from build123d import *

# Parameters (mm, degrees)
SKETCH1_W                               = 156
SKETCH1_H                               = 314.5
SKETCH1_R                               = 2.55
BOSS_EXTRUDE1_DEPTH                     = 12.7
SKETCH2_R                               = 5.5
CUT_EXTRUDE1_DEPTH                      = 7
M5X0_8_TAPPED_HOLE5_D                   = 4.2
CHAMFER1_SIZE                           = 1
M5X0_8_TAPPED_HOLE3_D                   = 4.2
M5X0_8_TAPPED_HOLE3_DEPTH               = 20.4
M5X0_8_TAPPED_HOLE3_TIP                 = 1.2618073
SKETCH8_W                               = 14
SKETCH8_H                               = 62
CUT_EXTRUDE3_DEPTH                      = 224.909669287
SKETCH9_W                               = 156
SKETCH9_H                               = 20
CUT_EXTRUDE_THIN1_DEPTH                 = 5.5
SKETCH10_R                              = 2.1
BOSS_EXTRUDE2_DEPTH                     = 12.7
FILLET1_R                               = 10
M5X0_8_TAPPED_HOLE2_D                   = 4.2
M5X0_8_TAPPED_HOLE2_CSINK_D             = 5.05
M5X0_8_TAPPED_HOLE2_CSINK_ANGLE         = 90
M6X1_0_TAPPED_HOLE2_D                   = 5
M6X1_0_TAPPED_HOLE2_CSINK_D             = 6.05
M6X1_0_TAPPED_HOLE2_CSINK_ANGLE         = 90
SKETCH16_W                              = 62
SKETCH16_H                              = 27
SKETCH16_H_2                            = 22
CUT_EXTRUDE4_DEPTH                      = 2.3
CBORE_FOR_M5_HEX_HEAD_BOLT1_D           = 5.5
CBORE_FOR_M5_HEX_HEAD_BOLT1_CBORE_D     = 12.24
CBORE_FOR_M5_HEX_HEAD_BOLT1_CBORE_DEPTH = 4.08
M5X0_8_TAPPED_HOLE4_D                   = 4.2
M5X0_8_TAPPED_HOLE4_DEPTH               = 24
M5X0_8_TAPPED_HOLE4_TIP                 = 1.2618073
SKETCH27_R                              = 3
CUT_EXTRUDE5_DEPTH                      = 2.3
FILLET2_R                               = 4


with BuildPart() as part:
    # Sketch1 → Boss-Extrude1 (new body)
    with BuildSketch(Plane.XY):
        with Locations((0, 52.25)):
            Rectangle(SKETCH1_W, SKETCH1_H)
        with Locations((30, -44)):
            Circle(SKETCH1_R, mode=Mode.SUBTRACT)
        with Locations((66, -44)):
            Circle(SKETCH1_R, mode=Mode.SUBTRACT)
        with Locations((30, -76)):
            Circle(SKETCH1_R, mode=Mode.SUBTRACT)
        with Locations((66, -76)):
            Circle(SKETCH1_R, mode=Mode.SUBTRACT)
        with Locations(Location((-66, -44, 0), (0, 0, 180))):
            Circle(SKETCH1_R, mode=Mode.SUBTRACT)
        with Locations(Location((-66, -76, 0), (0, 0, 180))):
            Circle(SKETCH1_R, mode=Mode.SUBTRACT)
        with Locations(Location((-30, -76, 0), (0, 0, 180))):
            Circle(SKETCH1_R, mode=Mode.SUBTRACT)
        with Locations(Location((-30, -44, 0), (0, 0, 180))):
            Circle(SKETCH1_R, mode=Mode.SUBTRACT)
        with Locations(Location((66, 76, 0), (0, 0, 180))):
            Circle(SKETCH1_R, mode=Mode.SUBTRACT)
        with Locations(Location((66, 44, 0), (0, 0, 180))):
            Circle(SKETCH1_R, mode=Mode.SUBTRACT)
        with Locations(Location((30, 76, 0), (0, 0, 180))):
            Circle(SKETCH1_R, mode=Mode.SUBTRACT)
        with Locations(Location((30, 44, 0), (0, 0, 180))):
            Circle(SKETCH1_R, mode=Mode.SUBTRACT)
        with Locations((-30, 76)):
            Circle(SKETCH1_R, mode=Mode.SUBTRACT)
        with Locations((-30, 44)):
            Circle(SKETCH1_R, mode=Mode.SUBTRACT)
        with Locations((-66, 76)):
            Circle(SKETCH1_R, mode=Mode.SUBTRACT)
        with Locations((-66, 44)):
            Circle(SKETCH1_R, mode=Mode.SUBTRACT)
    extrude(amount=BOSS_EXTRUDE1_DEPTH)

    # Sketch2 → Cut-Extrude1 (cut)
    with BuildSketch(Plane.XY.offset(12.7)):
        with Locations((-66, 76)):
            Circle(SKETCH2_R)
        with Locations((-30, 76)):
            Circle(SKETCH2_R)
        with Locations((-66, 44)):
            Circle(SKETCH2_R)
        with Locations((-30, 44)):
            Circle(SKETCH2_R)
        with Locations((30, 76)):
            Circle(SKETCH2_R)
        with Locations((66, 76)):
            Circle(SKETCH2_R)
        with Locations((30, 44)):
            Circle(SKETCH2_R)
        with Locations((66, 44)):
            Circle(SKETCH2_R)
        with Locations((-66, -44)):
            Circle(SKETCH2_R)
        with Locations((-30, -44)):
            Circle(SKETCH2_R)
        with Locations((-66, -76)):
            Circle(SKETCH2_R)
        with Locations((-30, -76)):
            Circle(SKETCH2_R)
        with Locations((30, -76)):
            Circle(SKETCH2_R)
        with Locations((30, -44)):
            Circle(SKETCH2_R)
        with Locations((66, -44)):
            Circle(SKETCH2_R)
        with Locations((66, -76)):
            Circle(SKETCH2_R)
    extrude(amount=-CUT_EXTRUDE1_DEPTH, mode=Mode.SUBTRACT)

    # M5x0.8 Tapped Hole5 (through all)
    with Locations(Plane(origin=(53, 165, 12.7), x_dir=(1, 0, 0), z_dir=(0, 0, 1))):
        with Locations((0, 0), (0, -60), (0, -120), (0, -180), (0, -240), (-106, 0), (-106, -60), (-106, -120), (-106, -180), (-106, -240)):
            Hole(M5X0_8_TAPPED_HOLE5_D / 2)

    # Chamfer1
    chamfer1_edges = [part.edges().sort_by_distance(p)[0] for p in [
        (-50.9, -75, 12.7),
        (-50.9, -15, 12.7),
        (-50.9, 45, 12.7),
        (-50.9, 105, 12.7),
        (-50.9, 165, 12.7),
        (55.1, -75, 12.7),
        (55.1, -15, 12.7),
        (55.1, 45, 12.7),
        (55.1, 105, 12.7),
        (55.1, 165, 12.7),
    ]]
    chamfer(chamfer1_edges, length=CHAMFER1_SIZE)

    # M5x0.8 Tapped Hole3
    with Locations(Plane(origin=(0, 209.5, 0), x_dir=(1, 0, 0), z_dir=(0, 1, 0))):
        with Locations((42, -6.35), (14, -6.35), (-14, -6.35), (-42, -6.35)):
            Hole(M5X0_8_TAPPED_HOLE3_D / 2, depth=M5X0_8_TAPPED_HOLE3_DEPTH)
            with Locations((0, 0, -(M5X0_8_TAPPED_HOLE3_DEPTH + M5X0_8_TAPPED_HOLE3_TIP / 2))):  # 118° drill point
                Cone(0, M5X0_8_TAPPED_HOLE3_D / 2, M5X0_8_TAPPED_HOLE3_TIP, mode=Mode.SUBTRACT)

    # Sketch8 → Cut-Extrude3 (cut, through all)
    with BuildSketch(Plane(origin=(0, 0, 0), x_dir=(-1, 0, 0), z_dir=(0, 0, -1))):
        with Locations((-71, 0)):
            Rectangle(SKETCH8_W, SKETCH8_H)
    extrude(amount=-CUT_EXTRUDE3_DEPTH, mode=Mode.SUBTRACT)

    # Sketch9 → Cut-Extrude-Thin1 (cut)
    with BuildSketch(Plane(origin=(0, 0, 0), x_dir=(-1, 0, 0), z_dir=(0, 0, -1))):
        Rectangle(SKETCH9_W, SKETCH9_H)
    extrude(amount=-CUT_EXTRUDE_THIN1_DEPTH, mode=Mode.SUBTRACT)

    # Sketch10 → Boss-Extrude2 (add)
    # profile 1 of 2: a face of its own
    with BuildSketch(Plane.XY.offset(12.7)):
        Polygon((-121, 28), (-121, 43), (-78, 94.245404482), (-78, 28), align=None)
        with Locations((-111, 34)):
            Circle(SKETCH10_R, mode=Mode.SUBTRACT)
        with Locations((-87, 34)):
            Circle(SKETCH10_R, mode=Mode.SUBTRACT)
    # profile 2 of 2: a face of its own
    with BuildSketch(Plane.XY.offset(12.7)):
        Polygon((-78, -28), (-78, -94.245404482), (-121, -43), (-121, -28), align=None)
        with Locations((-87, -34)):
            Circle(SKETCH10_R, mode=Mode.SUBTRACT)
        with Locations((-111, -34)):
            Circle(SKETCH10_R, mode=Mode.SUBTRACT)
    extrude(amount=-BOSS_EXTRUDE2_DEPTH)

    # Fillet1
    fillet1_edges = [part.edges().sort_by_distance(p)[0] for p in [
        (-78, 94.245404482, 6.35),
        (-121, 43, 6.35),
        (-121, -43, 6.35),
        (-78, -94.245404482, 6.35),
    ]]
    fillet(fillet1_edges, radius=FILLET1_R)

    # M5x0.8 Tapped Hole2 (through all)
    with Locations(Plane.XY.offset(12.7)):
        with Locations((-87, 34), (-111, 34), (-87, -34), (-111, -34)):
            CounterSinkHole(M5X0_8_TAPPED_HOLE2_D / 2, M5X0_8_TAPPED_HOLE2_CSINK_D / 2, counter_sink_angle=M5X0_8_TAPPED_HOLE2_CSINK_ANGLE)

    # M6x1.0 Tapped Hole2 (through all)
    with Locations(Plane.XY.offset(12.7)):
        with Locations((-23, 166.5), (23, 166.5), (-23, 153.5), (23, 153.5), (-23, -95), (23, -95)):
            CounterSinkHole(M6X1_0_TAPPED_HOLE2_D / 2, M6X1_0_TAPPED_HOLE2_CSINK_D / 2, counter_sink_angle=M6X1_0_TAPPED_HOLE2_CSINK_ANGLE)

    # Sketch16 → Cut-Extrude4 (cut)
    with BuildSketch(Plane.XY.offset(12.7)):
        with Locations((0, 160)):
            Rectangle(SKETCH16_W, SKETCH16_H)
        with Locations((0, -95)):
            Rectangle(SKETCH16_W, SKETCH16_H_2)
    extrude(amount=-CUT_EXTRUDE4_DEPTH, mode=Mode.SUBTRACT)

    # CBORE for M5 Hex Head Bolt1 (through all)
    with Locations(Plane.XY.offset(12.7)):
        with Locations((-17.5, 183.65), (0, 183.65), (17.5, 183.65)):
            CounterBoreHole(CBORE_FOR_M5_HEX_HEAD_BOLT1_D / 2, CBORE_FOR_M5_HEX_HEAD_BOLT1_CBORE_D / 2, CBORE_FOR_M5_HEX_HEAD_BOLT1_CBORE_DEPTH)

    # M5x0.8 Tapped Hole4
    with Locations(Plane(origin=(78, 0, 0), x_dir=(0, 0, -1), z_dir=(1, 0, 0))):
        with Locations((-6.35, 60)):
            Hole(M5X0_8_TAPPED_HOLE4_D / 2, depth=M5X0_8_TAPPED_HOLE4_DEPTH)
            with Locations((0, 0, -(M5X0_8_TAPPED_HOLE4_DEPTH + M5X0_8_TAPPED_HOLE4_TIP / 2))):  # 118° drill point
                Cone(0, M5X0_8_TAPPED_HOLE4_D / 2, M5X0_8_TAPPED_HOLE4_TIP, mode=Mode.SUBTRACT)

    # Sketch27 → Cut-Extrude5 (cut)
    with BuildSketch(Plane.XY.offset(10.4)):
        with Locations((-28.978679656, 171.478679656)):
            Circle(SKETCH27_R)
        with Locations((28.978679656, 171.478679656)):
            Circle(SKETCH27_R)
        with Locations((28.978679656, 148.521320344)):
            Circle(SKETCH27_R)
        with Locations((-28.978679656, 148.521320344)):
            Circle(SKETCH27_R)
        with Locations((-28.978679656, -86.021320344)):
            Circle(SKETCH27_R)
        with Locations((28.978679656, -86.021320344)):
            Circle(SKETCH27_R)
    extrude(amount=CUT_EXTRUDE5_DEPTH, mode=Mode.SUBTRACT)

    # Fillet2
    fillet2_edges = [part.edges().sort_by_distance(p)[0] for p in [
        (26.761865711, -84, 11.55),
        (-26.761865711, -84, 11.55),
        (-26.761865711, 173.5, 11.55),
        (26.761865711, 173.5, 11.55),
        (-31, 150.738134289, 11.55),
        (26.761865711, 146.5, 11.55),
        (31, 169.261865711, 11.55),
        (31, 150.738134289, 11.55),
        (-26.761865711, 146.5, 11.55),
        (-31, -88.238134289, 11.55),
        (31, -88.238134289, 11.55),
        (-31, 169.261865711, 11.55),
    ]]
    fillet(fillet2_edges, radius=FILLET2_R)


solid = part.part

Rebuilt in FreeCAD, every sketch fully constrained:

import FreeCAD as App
import Part
import Sketcher
from FreeCAD import Vector
Q = App.Units.Quantity


def edges_at(feature, points):
    """Names of the edges that pass closest to the given points."""
    edges = feature.Shape.Edges
    near = lambda p: min(range(len(edges)), key=lambda i: edges[i].distToShape(Part.Vertex(*p))[0])
    return sorted({f"Edge{near(p) + 1}" for p in points})

doc = App.newDocument("Part")
body = doc.addObject("PartDesign::Body", "Body")

# Sketch on XY plane
sketch1 = doc.addObject("Sketcher::SketchObject", "Sketch")
body.addObject(sketch1)
sketch1.AttachmentSupport = (doc.XY_Plane, [""])
sketch1.MapMode = "FlatFace"
sketch1.addGeometry(Part.LineSegment(Vector(-78, 209.5, 0), Vector(-78, -105, 0)), False)
sketch1.addGeometry(Part.LineSegment(Vector(-78, -105, 0), Vector(78, -105, 0)), False)
sketch1.addGeometry(Part.LineSegment(Vector(78, -105, 0), Vector(78, 209.5, 0)), False)
sketch1.addGeometry(Part.LineSegment(Vector(78, 209.5, 0), Vector(-78, 209.5, 0)), False)
sketch1.addGeometry(Part.Circle(Vector(-66, -76, 0), Vector(0, 0, 1), 2.55), False)
sketch1.addGeometry(Part.Circle(Vector(-66, -44, 0), Vector(0, 0, 1), 2.55), False)
sketch1.addGeometry(Part.Circle(Vector(-30, -76, 0), Vector(0, 0, 1), 2.55), False)
sketch1.addGeometry(Part.Circle(Vector(-30, -44, 0), Vector(0, 0, 1), 2.55), False)
sketch1.addGeometry(Part.Circle(Vector(30, -76, 0), Vector(0, 0, 1), 2.55), False)
sketch1.addGeometry(Part.Circle(Vector(30, -44, 0), Vector(0, 0, 1), 2.55), False)
sketch1.addGeometry(Part.Circle(Vector(66, -76, 0), Vector(0, 0, 1), 2.55), False)
sketch1.addGeometry(Part.Circle(Vector(66, -44, 0), Vector(0, 0, 1), 2.55), False)
sketch1.addGeometry(Part.Circle(Vector(-66, 44, 0), Vector(0, 0, 1), 2.55), False)
sketch1.addGeometry(Part.Circle(Vector(-66, 76, 0), Vector(0, 0, 1), 2.55), False)
sketch1.addGeometry(Part.Circle(Vector(-30, 44, 0), Vector(0, 0, 1), 2.55), False)
sketch1.addGeometry(Part.Circle(Vector(-30, 76, 0), Vector(0, 0, 1), 2.55), False)
sketch1.addGeometry(Part.Circle(Vector(30, 44, 0), Vector(0, 0, 1), 2.55), False)
sketch1.addGeometry(Part.Circle(Vector(30, 76, 0), Vector(0, 0, 1), 2.55), False)
sketch1.addGeometry(Part.Circle(Vector(66, 44, 0), Vector(0, 0, 1), 2.55), False)
sketch1.addGeometry(Part.Circle(Vector(66, 76, 0), Vector(0, 0, 1), 2.55), False)
sketch1.addConstraint(Sketcher.Constraint("Coincident", 0, 2, 1, 1))
sketch1.addConstraint(Sketcher.Constraint("Coincident", 1, 2, 2, 1))
sketch1.addConstraint(Sketcher.Constraint("Coincident", 2, 2, 3, 1))
sketch1.addConstraint(Sketcher.Constraint("Coincident", 3, 2, 0, 1))
sketch1.addConstraint(Sketcher.Constraint("Vertical", 0))
sketch1.addConstraint(Sketcher.Constraint("Horizontal", 1))
sketch1.addConstraint(Sketcher.Constraint("Vertical", 2))
sketch1.addConstraint(Sketcher.Constraint("Horizontal", 3))
sketch1.addConstraint(Sketcher.Constraint("Equal", 4, 5))
sketch1.addConstraint(Sketcher.Constraint("Equal", 5, 6))
sketch1.addConstraint(Sketcher.Constraint("Equal", 6, 7))
sketch1.addConstraint(Sketcher.Constraint("Equal", 7, 8))
sketch1.addConstraint(Sketcher.Constraint("Equal", 8, 9))
sketch1.addConstraint(Sketcher.Constraint("Equal", 9, 10))
sketch1.addConstraint(Sketcher.Constraint("Equal", 10, 11))
sketch1.addConstraint(Sketcher.Constraint("Equal", 11, 12))
sketch1.addConstraint(Sketcher.Constraint("Equal", 12, 13))
sketch1.addConstraint(Sketcher.Constraint("Equal", 13, 14))
sketch1.addConstraint(Sketcher.Constraint("Equal", 14, 15))
sketch1.addConstraint(Sketcher.Constraint("Equal", 15, 16))
sketch1.addConstraint(Sketcher.Constraint("Equal", 16, 17))
sketch1.addConstraint(Sketcher.Constraint("Equal", 17, 18))
sketch1.addConstraint(Sketcher.Constraint("Equal", 18, 19))
sketch1.addConstraint(Sketcher.Constraint("Symmetric", 11, 3, 12, 3, -1, 1))
sketch1.addConstraint(Sketcher.Constraint("Symmetric", 10, 3, 13, 3, -1, 1))
sketch1.addConstraint(Sketcher.Constraint("Symmetric", 9, 3, 14, 3, -1, 1))
sketch1.addConstraint(Sketcher.Constraint("Symmetric", 8, 3, 15, 3, -1, 1))
sketch1.addConstraint(Sketcher.Constraint("Symmetric", 7, 3, 16, 3, -1, 1))
sketch1.addConstraint(Sketcher.Constraint("Symmetric", 6, 3, 17, 3, -1, 1))
sketch1.addConstraint(Sketcher.Constraint("Symmetric", 5, 3, 18, 3, -1, 1))
sketch1.addConstraint(Sketcher.Constraint("Symmetric", 4, 3, 19, 3, -1, 1))
sketch1.addConstraint(Sketcher.Constraint("Symmetric", 6, 3, 8, 3, -2))
sketch1.addConstraint(Sketcher.Constraint("Symmetric", 7, 3, 9, 3, -2))
sketch1.addConstraint(Sketcher.Constraint("Symmetric", 4, 3, 10, 3, -2))
sketch1.addConstraint(Sketcher.Constraint("Symmetric", 5, 3, 11, 3, -2))
sketch1.addConstraint(Sketcher.Constraint("Horizontal", 4, 3, 6, 3))
sketch1.addConstraint(Sketcher.Constraint("Horizontal", 5, 3, 7, 3))
sketch1.addConstraint(Sketcher.Constraint("Vertical", 4, 3, 5, 3))
sketch1.addConstraint(Sketcher.Constraint("Vertical", 6, 3, 7, 3))
sketch1.addConstraint(Sketcher.Constraint("Diameter", 4, 5.1))
sketch1.addConstraint(Sketcher.Constraint("DistanceX", 1, 1, 1, 2, 156.0))
sketch1.addConstraint(Sketcher.Constraint("DistanceY", 0, 2, 0, 1, 314.5))
sketch1.addConstraint(Sketcher.Constraint("DistanceX", 4, 3, -1, 1, 66.0))
sketch1.addConstraint(Sketcher.Constraint("DistanceY", 4, 3, -1, 1, 76.0))
sketch1.addConstraint(Sketcher.Constraint("DistanceY", 5, 3, -1, 1, 44.0))
sketch1.addConstraint(Sketcher.Constraint("DistanceX", 6, 3, -1, 1, 30.0))
sketch1.addConstraint(Sketcher.Constraint("DistanceX", 0, 2, -1, 1, 78.0))
sketch1.addConstraint(Sketcher.Constraint("DistanceY", 0, 2, -1, 1, 105.0))
pad1 = doc.addObject("PartDesign::Pad", "Pad")
body.addObject(pad1)
pad1.Profile = sketch1
pad1.Length = 12.7

# Sketch on XY plane
sketch2 = doc.addObject("Sketcher::SketchObject", "Sketch001")
body.addObject(sketch2)
sketch2.AttachmentSupport = (doc.XY_Plane, [""])
sketch2.MapMode = "FlatFace"
sketch2.AttachmentOffset = App.Placement(Vector(0, 0, 12.7), App.Rotation())
sketch2.addGeometry(Part.Circle(Vector(-66, 76, 0), Vector(0, 0, 1), 5.5), False)
sketch2.addGeometry(Part.Circle(Vector(-30, 76, 0), Vector(0, 0, 1), 5.5), False)
sketch2.addGeometry(Part.Circle(Vector(-66, 44, 0), Vector(0, 0, 1), 5.5), False)
sketch2.addGeometry(Part.Circle(Vector(-30, 44, 0), Vector(0, 0, 1), 5.5), False)
sketch2.addGeometry(Part.Circle(Vector(30, 76, 0), Vector(0, 0, 1), 5.5), False)
sketch2.addGeometry(Part.Circle(Vector(66, 76, 0), Vector(0, 0, 1), 5.5), False)
sketch2.addGeometry(Part.Circle(Vector(30, 44, 0), Vector(0, 0, 1), 5.5), False)
sketch2.addGeometry(Part.Circle(Vector(66, 44, 0), Vector(0, 0, 1), 5.5), False)
sketch2.addGeometry(Part.Circle(Vector(-66, -44, 0), Vector(0, 0, 1), 5.5), False)
sketch2.addGeometry(Part.Circle(Vector(-30, -44, 0), Vector(0, 0, 1), 5.5), False)
sketch2.addGeometry(Part.Circle(Vector(-66, -76, 0), Vector(0, 0, 1), 5.5), False)
sketch2.addGeometry(Part.Circle(Vector(-30, -76, 0), Vector(0, 0, 1), 5.5), False)
sketch2.addGeometry(Part.Circle(Vector(30, -76, 0), Vector(0, 0, 1), 5.5), False)
sketch2.addGeometry(Part.Circle(Vector(30, -44, 0), Vector(0, 0, 1), 5.5), False)
sketch2.addGeometry(Part.Circle(Vector(66, -44, 0), Vector(0, 0, 1), 5.5), False)
sketch2.addGeometry(Part.Circle(Vector(66, -76, 0), Vector(0, 0, 1), 5.5), False)
sketch2.addConstraint(Sketcher.Constraint("Equal", 0, 1))
sketch2.addConstraint(Sketcher.Constraint("Equal", 1, 2))
sketch2.addConstraint(Sketcher.Constraint("Equal", 2, 3))
sketch2.addConstraint(Sketcher.Constraint("Equal", 3, 4))
sketch2.addConstraint(Sketcher.Constraint("Equal", 4, 5))
sketch2.addConstraint(Sketcher.Constraint("Equal", 5, 6))
sketch2.addConstraint(Sketcher.Constraint("Equal", 6, 7))
sketch2.addConstraint(Sketcher.Constraint("Equal", 7, 8))
sketch2.addConstraint(Sketcher.Constraint("Equal", 8, 9))
sketch2.addConstraint(Sketcher.Constraint("Equal", 9, 10))
sketch2.addConstraint(Sketcher.Constraint("Equal", 10, 11))
sketch2.addConstraint(Sketcher.Constraint("Equal", 11, 12))
sketch2.addConstraint(Sketcher.Constraint("Equal", 12, 13))
sketch2.addConstraint(Sketcher.Constraint("Equal", 13, 14))
sketch2.addConstraint(Sketcher.Constraint("Equal", 14, 15))
sketch2.addConstraint(Sketcher.Constraint("Symmetric", 7, 3, 8, 3, -1, 1))
sketch2.addConstraint(Sketcher.Constraint("Symmetric", 6, 3, 9, 3, -1, 1))
sketch2.addConstraint(Sketcher.Constraint("Symmetric", 5, 3, 10, 3, -1, 1))
sketch2.addConstraint(Sketcher.Constraint("Symmetric", 4, 3, 11, 3, -1, 1))
sketch2.addConstraint(Sketcher.Constraint("Symmetric", 1, 3, 12, 3, -1, 1))
sketch2.addConstraint(Sketcher.Constraint("Symmetric", 3, 3, 13, 3, -1, 1))
sketch2.addConstraint(Sketcher.Constraint("Symmetric", 2, 3, 14, 3, -1, 1))
sketch2.addConstraint(Sketcher.Constraint("Symmetric", 0, 3, 15, 3, -1, 1))
sketch2.addConstraint(Sketcher.Constraint("Symmetric", 1, 3, 4, 3, -2))
sketch2.addConstraint(Sketcher.Constraint("Symmetric", 0, 3, 5, 3, -2))
sketch2.addConstraint(Sketcher.Constraint("Symmetric", 3, 3, 6, 3, -2))
sketch2.addConstraint(Sketcher.Constraint("Symmetric", 2, 3, 7, 3, -2))
sketch2.addConstraint(Sketcher.Constraint("Horizontal", 0, 3, 1, 3))
sketch2.addConstraint(Sketcher.Constraint("Horizontal", 2, 3, 3, 3))
sketch2.addConstraint(Sketcher.Constraint("Vertical", 0, 3, 2, 3))
sketch2.addConstraint(Sketcher.Constraint("Vertical", 1, 3, 3, 3))
sketch2.addConstraint(Sketcher.Constraint("Diameter", 0, 11.0))
sketch2.addConstraint(Sketcher.Constraint("DistanceX", 0, 3, -1, 1, 66.0))
sketch2.addConstraint(Sketcher.Constraint("DistanceY", -1, 1, 0, 3, 76.0))
sketch2.addConstraint(Sketcher.Constraint("DistanceX", 1, 3, -1, 1, 30.0))
sketch2.addConstraint(Sketcher.Constraint("DistanceY", -1, 1, 2, 3, 44.0))
pocket1 = doc.addObject("PartDesign::Pocket", "Pocket")
body.addObject(pocket1)
pocket1.Profile = sketch2
pocket1.Length = 7

# Sketch on XY plane
sketch3 = doc.addObject("Sketcher::SketchObject", "Sketch002")
body.addObject(sketch3)
sketch3.AttachmentSupport = (doc.XY_Plane, [""])
sketch3.MapMode = "FlatFace"
sketch3.AttachmentOffset = App.Placement(Vector(0, 0, 12.7), App.Rotation())
sketch3.addGeometry(Part.Circle(Vector(53, 165, 0), Vector(0, 0, 1), 2.1), False)
sketch3.addGeometry(Part.Circle(Vector(53, 105, 0), Vector(0, 0, 1), 2.1), False)
sketch3.addGeometry(Part.Circle(Vector(53, 45, 0), Vector(0, 0, 1), 2.1), False)
sketch3.addGeometry(Part.Circle(Vector(53, -15, 0), Vector(0, 0, 1), 2.1), False)
sketch3.addGeometry(Part.Circle(Vector(53, -75, 0), Vector(0, 0, 1), 2.1), False)
sketch3.addGeometry(Part.Circle(Vector(-53, 165, 0), Vector(0, 0, 1), 2.1), False)
sketch3.addGeometry(Part.Circle(Vector(-53, 105, 0), Vector(0, 0, 1), 2.1), False)
sketch3.addGeometry(Part.Circle(Vector(-53, 45, 0), Vector(0, 0, 1), 2.1), False)
sketch3.addGeometry(Part.Circle(Vector(-53, -15, 0), Vector(0, 0, 1), 2.1), False)
sketch3.addGeometry(Part.Circle(Vector(-53, -75, 0), Vector(0, 0, 1), 2.1), False)
sketch3.addConstraint(Sketcher.Constraint("Equal", 0, 1))
sketch3.addConstraint(Sketcher.Constraint("Equal", 1, 2))
sketch3.addConstraint(Sketcher.Constraint("Equal", 2, 3))
sketch3.addConstraint(Sketcher.Constraint("Equal", 3, 4))
sketch3.addConstraint(Sketcher.Constraint("Equal", 4, 5))
sketch3.addConstraint(Sketcher.Constraint("Equal", 5, 6))
sketch3.addConstraint(Sketcher.Constraint("Equal", 6, 7))
sketch3.addConstraint(Sketcher.Constraint("Equal", 7, 8))
sketch3.addConstraint(Sketcher.Constraint("Equal", 8, 9))
sketch3.addConstraint(Sketcher.Constraint("Symmetric", 0, 3, 5, 3, -2))
sketch3.addConstraint(Sketcher.Constraint("Symmetric", 1, 3, 6, 3, -2))
sketch3.addConstraint(Sketcher.Constraint("Symmetric", 2, 3, 7, 3, -2))
sketch3.addConstraint(Sketcher.Constraint("Symmetric", 3, 3, 8, 3, -2))
sketch3.addConstraint(Sketcher.Constraint("Symmetric", 4, 3, 9, 3, -2))
sketch3.addConstraint(Sketcher.Constraint("Vertical", 0, 3, 1, 3))
sketch3.addConstraint(Sketcher.Constraint("Vertical", 1, 3, 2, 3))
sketch3.addConstraint(Sketcher.Constraint("Vertical", 2, 3, 3, 3))
sketch3.addConstraint(Sketcher.Constraint("Vertical", 3, 3, 4, 3))
sketch3.addConstraint(Sketcher.Constraint("Diameter", 0, 4.2))
sketch3.addConstraint(Sketcher.Constraint("DistanceX", -1, 1, 0, 3, 53.0))
sketch3.addConstraint(Sketcher.Constraint("DistanceY", -1, 1, 0, 3, 165.0))
sketch3.addConstraint(Sketcher.Constraint("DistanceY", -1, 1, 1, 3, 105.0))
sketch3.addConstraint(Sketcher.Constraint("DistanceY", -1, 1, 2, 3, 45.0))
sketch3.addConstraint(Sketcher.Constraint("DistanceY", 3, 3, -1, 1, 15.0))
sketch3.addConstraint(Sketcher.Constraint("DistanceY", 4, 3, -1, 1, 75.0))
doc.recompute()
hole = doc.addObject("PartDesign::Hole", "Hole")
body.addObject(hole)
hole.Profile = sketch3
hole.ThreadType = "None"
hole.Diameter = 4.2
hole.DepthType = "ThroughAll"
doc.recompute()

chamfer = doc.addObject("PartDesign::Chamfer", "Chamfer")
body.addObject(chamfer)
chamfer.Base = (hole, edges_at(hole, [
    (-50.9, -75, 12.7),
    (-50.9, -15, 12.7),
    (-50.9, 45, 12.7),
    (-50.9, 105, 12.7),
    (-50.9, 165, 12.7),
    (55.1, -75, 12.7),
    (55.1, -15, 12.7),
    (55.1, 45, 12.7),
    (55.1, 105, 12.7),
    (55.1, 165, 12.7),
]))
chamfer.Size = 1

# Sketch on XZ plane
sketch4 = doc.addObject("Sketcher::SketchObject", "Sketch003")
body.addObject(sketch4)
sketch4.AttachmentSupport = (doc.XZ_Plane, [""])
sketch4.MapMode = "FlatFace"
sketch4.AttachmentOffset = App.Placement(Vector(0, 0, -209.5), App.Rotation())
sketch4.addGeometry(Part.Circle(Vector(42, 6.35, 0), Vector(0, 0, 1), 2.1), False)
sketch4.addGeometry(Part.Circle(Vector(14, 6.35, 0), Vector(0, 0, 1), 2.1), False)
sketch4.addGeometry(Part.Circle(Vector(-14, 6.35, 0), Vector(0, 0, 1), 2.1), False)
sketch4.addGeometry(Part.Circle(Vector(-42, 6.35, 0), Vector(0, 0, 1), 2.1), False)
sketch4.addConstraint(Sketcher.Constraint("Equal", 0, 1))
sketch4.addConstraint(Sketcher.Constraint("Equal", 1, 2))
sketch4.addConstraint(Sketcher.Constraint("Equal", 2, 3))
sketch4.addConstraint(Sketcher.Constraint("Symmetric", 1, 3, 2, 3, -2))
sketch4.addConstraint(Sketcher.Constraint("Symmetric", 0, 3, 3, 3, -2))
sketch4.addConstraint(Sketcher.Constraint("Horizontal", 0, 3, 1, 3))
sketch4.addConstraint(Sketcher.Constraint("Diameter", 0, 4.2))
sketch4.addConstraint(Sketcher.Constraint("DistanceX", -1, 1, 0, 3, 42.0))
sketch4.addConstraint(Sketcher.Constraint("DistanceX", -1, 1, 1, 3, 14.0))
sketch4.addConstraint(Sketcher.Constraint("DistanceY", -1, 1, 0, 3, 6.35))
doc.recompute()
hole2 = doc.addObject("PartDesign::Hole", "Hole001")
body.addObject(hole2)
hole2.Profile = sketch4
hole2.ThreadType = "None"
hole2.Diameter = 4.2
hole2.DepthType = "Dimension"
hole2.Depth = 20.4
hole2.DrillPoint = "Angled"
hole2.DrillPointAngle = 118
hole2.Reversed = True

# Sketch on XY plane
sketch5 = doc.addObject("Sketcher::SketchObject", "Sketch004")
body.addObject(sketch5)
sketch5.AttachmentSupport = (doc.XY_Plane, [""])
sketch5.MapMode = "FlatFace"
sketch5.addGeometry(Part.LineSegment(Vector(78, 31, 0), Vector(78, -31, 0)), False)
sketch5.addGeometry(Part.LineSegment(Vector(78, -31, 0), Vector(64, -31, 0)), False)
sketch5.addGeometry(Part.LineSegment(Vector(64, -31, 0), Vector(64, 31, 0)), False)
sketch5.addGeometry(Part.LineSegment(Vector(64, 31, 0), Vector(78, 31, 0)), False)
sketch5.addConstraint(Sketcher.Constraint("Coincident", 0, 2, 1, 1))
sketch5.addConstraint(Sketcher.Constraint("Coincident", 1, 2, 2, 1))
sketch5.addConstraint(Sketcher.Constraint("Coincident", 2, 2, 3, 1))
sketch5.addConstraint(Sketcher.Constraint("Coincident", 3, 2, 0, 1))
sketch5.addConstraint(Sketcher.Constraint("Vertical", 0))
sketch5.addConstraint(Sketcher.Constraint("Horizontal", 1))
sketch5.addConstraint(Sketcher.Constraint("Vertical", 2))
sketch5.addConstraint(Sketcher.Constraint("Horizontal", 3))
sketch5.addConstraint(Sketcher.Constraint("DistanceX", 1, 2, 1, 1, 14.0))
sketch5.addConstraint(Sketcher.Constraint("DistanceY", 0, 2, 0, 1, 62.0))
sketch5.addConstraint(Sketcher.Constraint("DistanceX", -1, 1, 0, 2, 78.0))
sketch5.addConstraint(Sketcher.Constraint("DistanceY", 0, 2, -1, 1, 31.0))
pocket2 = doc.addObject("PartDesign::Pocket", "Pocket001")
body.addObject(pocket2)
pocket2.Profile = sketch5
pocket2.Type = "ThroughAll"
pocket2.Reversed = True

# Sketch on XY plane
sketch6 = doc.addObject("Sketcher::SketchObject", "Sketch005")
body.addObject(sketch6)
sketch6.AttachmentSupport = (doc.XY_Plane, [""])
sketch6.MapMode = "FlatFace"
sketch6.addGeometry(Part.LineSegment(Vector(78, 10, 0), Vector(78, -10, 0)), False)
sketch6.addGeometry(Part.LineSegment(Vector(78, -10, 0), Vector(-78, -10, 0)), False)
sketch6.addGeometry(Part.LineSegment(Vector(-78, -10, 0), Vector(-78, 10, 0)), False)
sketch6.addGeometry(Part.LineSegment(Vector(-78, 10, 0), Vector(78, 10, 0)), False)
sketch6.addConstraint(Sketcher.Constraint("Coincident", 0, 2, 1, 1))
sketch6.addConstraint(Sketcher.Constraint("Coincident", 1, 2, 2, 1))
sketch6.addConstraint(Sketcher.Constraint("Coincident", 2, 2, 3, 1))
sketch6.addConstraint(Sketcher.Constraint("Coincident", 3, 2, 0, 1))
sketch6.addConstraint(Sketcher.Constraint("Vertical", 0))
sketch6.addConstraint(Sketcher.Constraint("Horizontal", 1))
sketch6.addConstraint(Sketcher.Constraint("Vertical", 2))
sketch6.addConstraint(Sketcher.Constraint("Horizontal", 3))
sketch6.addConstraint(Sketcher.Constraint("Symmetric", 0, 2, 2, 2, -1, 1))
sketch6.addConstraint(Sketcher.Constraint("DistanceX", 1, 2, 1, 1, 156.0))
sketch6.addConstraint(Sketcher.Constraint("DistanceY", 0, 2, 0, 1, 20.0))
pocket3 = doc.addObject("PartDesign::Pocket", "Pocket002")
body.addObject(pocket3)
pocket3.Profile = sketch6
pocket3.Length = 5.5
pocket3.Reversed = True

# Sketch on XY plane
sketch7 = doc.addObject("Sketcher::SketchObject", "Sketch006")
body.addObject(sketch7)
sketch7.AttachmentSupport = (doc.XY_Plane, [""])
sketch7.MapMode = "FlatFace"
sketch7.AttachmentOffset = App.Placement(Vector(0, 0, 12.7), App.Rotation())
sketch7.addGeometry(Part.LineSegment(Vector(-121, 43, 0), Vector(-121, 28, 0)), False)
sketch7.addGeometry(Part.LineSegment(Vector(-121, 28, 0), Vector(-78, 28, 0)), False)
sketch7.addGeometry(Part.LineSegment(Vector(-78, 28, 0), Vector(-78, 94.245404, 0)), False)
sketch7.addGeometry(Part.LineSegment(Vector(-78, 94.245404, 0), Vector(-121, 43, 0)), False)
sketch7.addGeometry(Part.Circle(Vector(-87, 34, 0), Vector(0, 0, 1), 2.1), False)
sketch7.addGeometry(Part.Circle(Vector(-111, 34, 0), Vector(0, 0, 1), 2.1), False)
sketch7.addGeometry(Part.LineSegment(Vector(-78, -94.245404, 0), Vector(-78, -28, 0)), False)
sketch7.addGeometry(Part.LineSegment(Vector(-78, -28, 0), Vector(-121, -28, 0)), False)
sketch7.addGeometry(Part.LineSegment(Vector(-121, -28, 0), Vector(-121, -43, 0)), False)
sketch7.addGeometry(Part.LineSegment(Vector(-121, -43, 0), Vector(-78, -94.245404, 0)), False)
sketch7.addGeometry(Part.Circle(Vector(-87, -34, 0), Vector(0, 0, 1), 2.1), False)
sketch7.addGeometry(Part.Circle(Vector(-111, -34, 0), Vector(0, 0, 1), 2.1), False)
sketch7.addConstraint(Sketcher.Constraint("Coincident", 0, 2, 1, 1))
sketch7.addConstraint(Sketcher.Constraint("Coincident", 1, 2, 2, 1))
sketch7.addConstraint(Sketcher.Constraint("Coincident", 2, 2, 3, 1))
sketch7.addConstraint(Sketcher.Constraint("Coincident", 3, 2, 0, 1))
sketch7.addConstraint(Sketcher.Constraint("Coincident", 6, 2, 7, 1))
sketch7.addConstraint(Sketcher.Constraint("Coincident", 7, 2, 8, 1))
sketch7.addConstraint(Sketcher.Constraint("Coincident", 8, 2, 9, 1))
sketch7.addConstraint(Sketcher.Constraint("Coincident", 9, 2, 6, 1))
sketch7.addConstraint(Sketcher.Constraint("Vertical", 0))
sketch7.addConstraint(Sketcher.Constraint("Horizontal", 1))
sketch7.addConstraint(Sketcher.Constraint("Vertical", 2))
sketch7.addConstraint(Sketcher.Constraint("Vertical", 6))
sketch7.addConstraint(Sketcher.Constraint("Horizontal", 7))
sketch7.addConstraint(Sketcher.Constraint("Vertical", 8))
sketch7.addConstraint(Sketcher.Constraint("Equal", 4, 5))
sketch7.addConstraint(Sketcher.Constraint("Equal", 5, 10))
sketch7.addConstraint(Sketcher.Constraint("Equal", 10, 11))
sketch7.addConstraint(Sketcher.Constraint("Symmetric", 4, 3, 10, 3, -1))
sketch7.addConstraint(Sketcher.Constraint("Symmetric", 5, 3, 11, 3, -1))
sketch7.addConstraint(Sketcher.Constraint("Symmetric", 1, 2, 6, 2, -1))
sketch7.addConstraint(Sketcher.Constraint("Symmetric", 3, 2, 8, 2, -1))
sketch7.addConstraint(Sketcher.Constraint("Horizontal", 4, 3, 5, 3))
sketch7.addConstraint(Sketcher.Constraint("Equal", 2, 6))
sketch7.addConstraint(Sketcher.Constraint("Diameter", 4, 4.2))
sketch7.addConstraint(Sketcher.Constraint("DistanceX", 1, 1, 1, 2, 43.0))
sketch7.addConstraint(Sketcher.Constraint("DistanceY", 0, 2, 0, 1, 15.0))
sketch7.addConstraint(Sketcher.Constraint("Angle", 3, Q("-130 deg")))
sketch7.addConstraint(Sketcher.Constraint("DistanceX", 4, 3, -1, 1, 87.0))
sketch7.addConstraint(Sketcher.Constraint("DistanceY", -1, 1, 4, 3, 34.0))
sketch7.addConstraint(Sketcher.Constraint("DistanceX", 5, 3, -1, 1, 111.0))
sketch7.addConstraint(Sketcher.Constraint("DistanceX", 0, 2, -1, 1, 121.0))
sketch7.addConstraint(Sketcher.Constraint("DistanceY", -1, 1, 0, 2, 28.0))
pad2 = doc.addObject("PartDesign::Pad", "Pad001")
body.addObject(pad2)
pad2.Profile = sketch7
pad2.Length = 12.7
pad2.Reversed = True
doc.recompute()

fillet = doc.addObject("PartDesign::Fillet", "Fillet")
body.addObject(fillet)
fillet.Base = (pad2, edges_at(pad2, [
    (-78, 94.245, 6.35),
    (-121, 43, 6.35),
    (-121, -43, 6.35),
    (-78, -94.245, 6.35),
]))
fillet.Radius = 10

# Sketch on XY plane
sketch8 = doc.addObject("Sketcher::SketchObject", "Sketch007")
body.addObject(sketch8)
sketch8.AttachmentSupport = (doc.XY_Plane, [""])
sketch8.MapMode = "FlatFace"
sketch8.AttachmentOffset = App.Placement(Vector(0, 0, 12.7), App.Rotation())
sketch8.addGeometry(Part.Circle(Vector(-87, 34, 0), Vector(0, 0, 1), 2.1), False)
sketch8.addGeometry(Part.Circle(Vector(-111, 34, 0), Vector(0, 0, 1), 2.1), False)
sketch8.addGeometry(Part.Circle(Vector(-87, -34, 0), Vector(0, 0, 1), 2.1), False)
sketch8.addGeometry(Part.Circle(Vector(-111, -34, 0), Vector(0, 0, 1), 2.1), False)
sketch8.addConstraint(Sketcher.Constraint("Equal", 0, 1))
sketch8.addConstraint(Sketcher.Constraint("Equal", 1, 2))
sketch8.addConstraint(Sketcher.Constraint("Equal", 2, 3))
sketch8.addConstraint(Sketcher.Constraint("Symmetric", 0, 3, 2, 3, -1))
sketch8.addConstraint(Sketcher.Constraint("Symmetric", 1, 3, 3, 3, -1))
sketch8.addConstraint(Sketcher.Constraint("Horizontal", 0, 3, 1, 3))
sketch8.addConstraint(Sketcher.Constraint("Diameter", 0, 4.2))
sketch8.addConstraint(Sketcher.Constraint("DistanceX", 0, 3, -1, 1, 87.0))
sketch8.addConstraint(Sketcher.Constraint("DistanceY", -1, 1, 0, 3, 34.0))
sketch8.addConstraint(Sketcher.Constraint("DistanceX", 1, 3, -1, 1, 111.0))
doc.recompute()
hole3 = doc.addObject("PartDesign::Hole", "Hole002")
body.addObject(hole3)
hole3.Profile = sketch8
hole3.ThreadType = "None"
hole3.Diameter = 4.2
hole3.DepthType = "ThroughAll"
hole3.HoleCutType = "Countersink"
hole3.HoleCutDiameter = 5.05
hole3.HoleCutCountersinkAngle = 90

# Sketch on XY plane
sketch9 = doc.addObject("Sketcher::SketchObject", "Sketch008")
body.addObject(sketch9)
sketch9.AttachmentSupport = (doc.XY_Plane, [""])
sketch9.MapMode = "FlatFace"
sketch9.AttachmentOffset = App.Placement(Vector(0, 0, 12.7), App.Rotation())
sketch9.addGeometry(Part.Circle(Vector(-23, 166.5, 0), Vector(0, 0, 1), 2.5), False)
sketch9.addGeometry(Part.Circle(Vector(23, 166.5, 0), Vector(0, 0, 1), 2.5), False)
sketch9.addGeometry(Part.Circle(Vector(-23, 153.5, 0), Vector(0, 0, 1), 2.5), False)
sketch9.addGeometry(Part.Circle(Vector(23, 153.5, 0), Vector(0, 0, 1), 2.5), False)
sketch9.addGeometry(Part.Circle(Vector(-23, -95, 0), Vector(0, 0, 1), 2.5), False)
sketch9.addGeometry(Part.Circle(Vector(23, -95, 0), Vector(0, 0, 1), 2.5), False)
sketch9.addConstraint(Sketcher.Constraint("Equal", 0, 1))
sketch9.addConstraint(Sketcher.Constraint("Equal", 1, 2))
sketch9.addConstraint(Sketcher.Constraint("Equal", 2, 3))
sketch9.addConstraint(Sketcher.Constraint("Equal", 3, 4))
sketch9.addConstraint(Sketcher.Constraint("Equal", 4, 5))
sketch9.addConstraint(Sketcher.Constraint("Symmetric", 0, 3, 1, 3, -2))
sketch9.addConstraint(Sketcher.Constraint("Symmetric", 2, 3, 3, 3, -2))
sketch9.addConstraint(Sketcher.Constraint("Symmetric", 4, 3, 5, 3, -2))
sketch9.addConstraint(Sketcher.Constraint("Vertical", 0, 3, 2, 3))
sketch9.addConstraint(Sketcher.Constraint("Vertical", 2, 3, 4, 3))
sketch9.addConstraint(Sketcher.Constraint("Diameter", 0, 5.0))
sketch9.addConstraint(Sketcher.Constraint("DistanceX", 0, 3, -1, 1, 23.0))
sketch9.addConstraint(Sketcher.Constraint("DistanceY", 4, 3, -1, 1, 95.0))
sketch9.addConstraint(Sketcher.Constraint("DistanceY", 2, 3, 0, 3, 13.0))
sketch9.addConstraint(Sketcher.Constraint("DistanceY", -1, 1, 0, 3, 166.5))
doc.recompute()
hole4 = doc.addObject("PartDesign::Hole", "Hole003")
body.addObject(hole4)
hole4.Profile = sketch9
hole4.ThreadType = "None"
hole4.Diameter = 5
hole4.DepthType = "ThroughAll"
hole4.HoleCutType = "Countersink"
hole4.HoleCutDiameter = 6.05
hole4.HoleCutCountersinkAngle = 90

# Sketch on XY plane
sketch10 = doc.addObject("Sketcher::SketchObject", "Sketch009")
body.addObject(sketch10)
sketch10.AttachmentSupport = (doc.XY_Plane, [""])
sketch10.MapMode = "FlatFace"
sketch10.AttachmentOffset = App.Placement(Vector(0, 0, 12.7), App.Rotation())
sketch10.addGeometry(Part.LineSegment(Vector(-31, 173.5, 0), Vector(-31, 146.5, 0)), False)
sketch10.addGeometry(Part.LineSegment(Vector(-31, 146.5, 0), Vector(31, 146.5, 0)), False)
sketch10.addGeometry(Part.LineSegment(Vector(31, 146.5, 0), Vector(31, 173.5, 0)), False)
sketch10.addGeometry(Part.LineSegment(Vector(31, 173.5, 0), Vector(-31, 173.5, 0)), False)
sketch10.addGeometry(Part.LineSegment(Vector(-31, -84, 0), Vector(-31, -106, 0)), False)
sketch10.addGeometry(Part.LineSegment(Vector(-31, -106, 0), Vector(31, -106, 0)), False)
sketch10.addGeometry(Part.LineSegment(Vector(31, -106, 0), Vector(31, -84, 0)), False)
sketch10.addGeometry(Part.LineSegment(Vector(31, -84, 0), Vector(-31, -84, 0)), False)
sketch10.addConstraint(Sketcher.Constraint("Coincident", 0, 2, 1, 1))
sketch10.addConstraint(Sketcher.Constraint("Coincident", 1, 2, 2, 1))
sketch10.addConstraint(Sketcher.Constraint("Coincident", 2, 2, 3, 1))
sketch10.addConstraint(Sketcher.Constraint("Coincident", 3, 2, 0, 1))
sketch10.addConstraint(Sketcher.Constraint("Coincident", 4, 2, 5, 1))
sketch10.addConstraint(Sketcher.Constraint("Coincident", 5, 2, 6, 1))
sketch10.addConstraint(Sketcher.Constraint("Coincident", 6, 2, 7, 1))
sketch10.addConstraint(Sketcher.Constraint("Coincident", 7, 2, 4, 1))
sketch10.addConstraint(Sketcher.Constraint("Vertical", 0))
sketch10.addConstraint(Sketcher.Constraint("Horizontal", 1))
sketch10.addConstraint(Sketcher.Constraint("Vertical", 2))
sketch10.addConstraint(Sketcher.Constraint("Horizontal", 3))
sketch10.addConstraint(Sketcher.Constraint("Vertical", 4))
sketch10.addConstraint(Sketcher.Constraint("Horizontal", 5))
sketch10.addConstraint(Sketcher.Constraint("Vertical", 6))
sketch10.addConstraint(Sketcher.Constraint("Horizontal", 7))
sketch10.addConstraint(Sketcher.Constraint("Vertical", 3, 2, 4, 2))
sketch10.addConstraint(Sketcher.Constraint("Vertical", 2, 2, 5, 2))
sketch10.addConstraint(Sketcher.Constraint("DistanceX", 1, 1, 1, 2, 62.0))
sketch10.addConstraint(Sketcher.Constraint("DistanceY", 0, 2, 0, 1, 27.0))
sketch10.addConstraint(Sketcher.Constraint("DistanceY", 4, 2, 4, 1, 22.0))
sketch10.addConstraint(Sketcher.Constraint("DistanceX", 0, 2, -1, 1, 31.0))
sketch10.addConstraint(Sketcher.Constraint("DistanceY", 4, 2, -1, 1, 106.0))
sketch10.addConstraint(Sketcher.Constraint("DistanceY", -1, 1, 0, 2, 146.5))
pocket4 = doc.addObject("PartDesign::Pocket", "Pocket003")
body.addObject(pocket4)
pocket4.Profile = sketch10
pocket4.Length = 2.3

# Sketch on XY plane
sketch11 = doc.addObject("Sketcher::SketchObject", "Sketch010")
body.addObject(sketch11)
sketch11.AttachmentSupport = (doc.XY_Plane, [""])
sketch11.MapMode = "FlatFace"
sketch11.AttachmentOffset = App.Placement(Vector(0, 0, 12.7), App.Rotation())
sketch11.addGeometry(Part.Circle(Vector(-17.5, 183.65, 0), Vector(0, 0, 1), 2.75), False)
sketch11.addGeometry(Part.Circle(Vector(0, 183.65, 0), Vector(0, 0, 1), 2.75), False)
sketch11.addGeometry(Part.Circle(Vector(17.5, 183.65, 0), Vector(0, 0, 1), 2.75), False)
sketch11.addConstraint(Sketcher.Constraint("Equal", 0, 1))
sketch11.addConstraint(Sketcher.Constraint("Equal", 1, 2))
sketch11.addConstraint(Sketcher.Constraint("Symmetric", 0, 3, 2, 3, -2))
sketch11.addConstraint(Sketcher.Constraint("PointOnObject", 1, 3, -2))
sketch11.addConstraint(Sketcher.Constraint("Horizontal", 0, 3, 1, 3))
sketch11.addConstraint(Sketcher.Constraint("Diameter", 0, 5.5))
sketch11.addConstraint(Sketcher.Constraint("DistanceX", 0, 3, 2, 3, 35.0))
sketch11.addConstraint(Sketcher.Constraint("DistanceY", -1, 1, 0, 3, 183.65))
doc.recompute()
hole5 = doc.addObject("PartDesign::Hole", "Hole004")
body.addObject(hole5)
hole5.Profile = sketch11
hole5.ThreadType = "None"
hole5.Diameter = 5.5
hole5.DepthType = "ThroughAll"
hole5.HoleCutType = "Counterbore"
hole5.HoleCutDiameter = 12.24
hole5.HoleCutDepth = 4.08

# Sketch on YZ plane
sketch12 = doc.addObject("Sketcher::SketchObject", "Sketch011")
body.addObject(sketch12)
sketch12.AttachmentSupport = (doc.YZ_Plane, [""])
sketch12.MapMode = "FlatFace"
sketch12.AttachmentOffset = App.Placement(Vector(0, 0, 78), App.Rotation())
sketch12.addGeometry(Part.Circle(Vector(60, 6.35, 0), Vector(0, 0, 1), 2.1), False)
sketch12.addConstraint(Sketcher.Constraint("Diameter", 0, 4.2))
sketch12.addConstraint(Sketcher.Constraint("DistanceX", -1, 1, 0, 3, 60.0))
sketch12.addConstraint(Sketcher.Constraint("DistanceY", -1, 1, 0, 3, 6.35))
doc.recompute()
hole6 = doc.addObject("PartDesign::Hole", "Hole005")
body.addObject(hole6)
hole6.Profile = sketch12
hole6.ThreadType = "None"
hole6.Diameter = 4.2
hole6.DepthType = "Dimension"
hole6.Depth = 24
hole6.DrillPoint = "Angled"
hole6.DrillPointAngle = 118

# Sketch on XY plane
sketch13 = doc.addObject("Sketcher::SketchObject", "Sketch012")
body.addObject(sketch13)
sketch13.AttachmentSupport = (doc.XY_Plane, [""])
sketch13.MapMode = "FlatFace"
sketch13.AttachmentOffset = App.Placement(Vector(0, 0, 10.4), App.Rotation())
sketch13.addGeometry(Part.Circle(Vector(-28.97868, 171.47868, 0), Vector(0, 0, 1), 3), False)
sketch13.addGeometry(Part.Circle(Vector(28.97868, 171.47868, 0), Vector(0, 0, 1), 3), False)
sketch13.addGeometry(Part.Circle(Vector(28.97868, 148.52132, 0), Vector(0, 0, 1), 3), False)
sketch13.addGeometry(Part.Circle(Vector(-28.97868, 148.52132, 0), Vector(0, 0, 1), 3), False)
sketch13.addGeometry(Part.Circle(Vector(-28.97868, -86.02132, 0), Vector(0, 0, 1), 3), False)
sketch13.addGeometry(Part.Circle(Vector(28.97868, -86.02132, 0), Vector(0, 0, 1), 3), False)
sketch13.addConstraint(Sketcher.Constraint("Equal", 0, 1))
sketch13.addConstraint(Sketcher.Constraint("Equal", 1, 2))
sketch13.addConstraint(Sketcher.Constraint("Equal", 2, 3))
sketch13.addConstraint(Sketcher.Constraint("Equal", 3, 4))
sketch13.addConstraint(Sketcher.Constraint("Equal", 4, 5))
sketch13.addConstraint(Sketcher.Constraint("Symmetric", 0, 3, 1, 3, -2))
sketch13.addConstraint(Sketcher.Constraint("Symmetric", 2, 3, 3, 3, -2))
sketch13.addConstraint(Sketcher.Constraint("Symmetric", 4, 3, 5, 3, -2))
sketch13.addConstraint(Sketcher.Constraint("Vertical", 1, 3, 2, 3))
sketch13.addConstraint(Sketcher.Constraint("Vertical", 3, 3, 4, 3))
sketch13.addConstraint(Sketcher.Constraint("Diameter", 0, 6.0))
sketch13.addConstraint(Sketcher.Constraint("DistanceY", 4, 3, 0, 3, 257.5))
sketch13.addConstraint(Sketcher.Constraint("DistanceX", 0, 3, -1, 1, 28.97868))
sketch13.addConstraint(Sketcher.Constraint("DistanceY", -1, 1, 0, 3, 171.47868))
sketch13.addConstraint(Sketcher.Constraint("DistanceY", -1, 1, 2, 3, 148.52132))
pocket5 = doc.addObject("PartDesign::Pocket", "Pocket004")
body.addObject(pocket5)
pocket5.Profile = sketch13
pocket5.Length = 2.3
pocket5.Reversed = True
doc.recompute()

fillet2 = doc.addObject("PartDesign::Fillet", "Fillet001")
body.addObject(fillet2)
fillet2.Base = (pocket5, edges_at(pocket5, [
    (26.762, -84, 11.55),
    (-26.762, -84, 11.55),
    (-26.762, 173.5, 11.55),
    (26.762, 173.5, 11.55),
    (-31, 150.738, 11.55),
    (26.762, 146.5, 11.55),
    (31, 169.262, 11.55),
    (31, 150.738, 11.55),
    (-26.762, 146.5, 11.55),
    (-31, -88.238, 11.55),
    (31, -88.238, 11.55),
    (-31, 169.262, 11.55),
]))
fillet2.Radius = 4

doc.recompute()
